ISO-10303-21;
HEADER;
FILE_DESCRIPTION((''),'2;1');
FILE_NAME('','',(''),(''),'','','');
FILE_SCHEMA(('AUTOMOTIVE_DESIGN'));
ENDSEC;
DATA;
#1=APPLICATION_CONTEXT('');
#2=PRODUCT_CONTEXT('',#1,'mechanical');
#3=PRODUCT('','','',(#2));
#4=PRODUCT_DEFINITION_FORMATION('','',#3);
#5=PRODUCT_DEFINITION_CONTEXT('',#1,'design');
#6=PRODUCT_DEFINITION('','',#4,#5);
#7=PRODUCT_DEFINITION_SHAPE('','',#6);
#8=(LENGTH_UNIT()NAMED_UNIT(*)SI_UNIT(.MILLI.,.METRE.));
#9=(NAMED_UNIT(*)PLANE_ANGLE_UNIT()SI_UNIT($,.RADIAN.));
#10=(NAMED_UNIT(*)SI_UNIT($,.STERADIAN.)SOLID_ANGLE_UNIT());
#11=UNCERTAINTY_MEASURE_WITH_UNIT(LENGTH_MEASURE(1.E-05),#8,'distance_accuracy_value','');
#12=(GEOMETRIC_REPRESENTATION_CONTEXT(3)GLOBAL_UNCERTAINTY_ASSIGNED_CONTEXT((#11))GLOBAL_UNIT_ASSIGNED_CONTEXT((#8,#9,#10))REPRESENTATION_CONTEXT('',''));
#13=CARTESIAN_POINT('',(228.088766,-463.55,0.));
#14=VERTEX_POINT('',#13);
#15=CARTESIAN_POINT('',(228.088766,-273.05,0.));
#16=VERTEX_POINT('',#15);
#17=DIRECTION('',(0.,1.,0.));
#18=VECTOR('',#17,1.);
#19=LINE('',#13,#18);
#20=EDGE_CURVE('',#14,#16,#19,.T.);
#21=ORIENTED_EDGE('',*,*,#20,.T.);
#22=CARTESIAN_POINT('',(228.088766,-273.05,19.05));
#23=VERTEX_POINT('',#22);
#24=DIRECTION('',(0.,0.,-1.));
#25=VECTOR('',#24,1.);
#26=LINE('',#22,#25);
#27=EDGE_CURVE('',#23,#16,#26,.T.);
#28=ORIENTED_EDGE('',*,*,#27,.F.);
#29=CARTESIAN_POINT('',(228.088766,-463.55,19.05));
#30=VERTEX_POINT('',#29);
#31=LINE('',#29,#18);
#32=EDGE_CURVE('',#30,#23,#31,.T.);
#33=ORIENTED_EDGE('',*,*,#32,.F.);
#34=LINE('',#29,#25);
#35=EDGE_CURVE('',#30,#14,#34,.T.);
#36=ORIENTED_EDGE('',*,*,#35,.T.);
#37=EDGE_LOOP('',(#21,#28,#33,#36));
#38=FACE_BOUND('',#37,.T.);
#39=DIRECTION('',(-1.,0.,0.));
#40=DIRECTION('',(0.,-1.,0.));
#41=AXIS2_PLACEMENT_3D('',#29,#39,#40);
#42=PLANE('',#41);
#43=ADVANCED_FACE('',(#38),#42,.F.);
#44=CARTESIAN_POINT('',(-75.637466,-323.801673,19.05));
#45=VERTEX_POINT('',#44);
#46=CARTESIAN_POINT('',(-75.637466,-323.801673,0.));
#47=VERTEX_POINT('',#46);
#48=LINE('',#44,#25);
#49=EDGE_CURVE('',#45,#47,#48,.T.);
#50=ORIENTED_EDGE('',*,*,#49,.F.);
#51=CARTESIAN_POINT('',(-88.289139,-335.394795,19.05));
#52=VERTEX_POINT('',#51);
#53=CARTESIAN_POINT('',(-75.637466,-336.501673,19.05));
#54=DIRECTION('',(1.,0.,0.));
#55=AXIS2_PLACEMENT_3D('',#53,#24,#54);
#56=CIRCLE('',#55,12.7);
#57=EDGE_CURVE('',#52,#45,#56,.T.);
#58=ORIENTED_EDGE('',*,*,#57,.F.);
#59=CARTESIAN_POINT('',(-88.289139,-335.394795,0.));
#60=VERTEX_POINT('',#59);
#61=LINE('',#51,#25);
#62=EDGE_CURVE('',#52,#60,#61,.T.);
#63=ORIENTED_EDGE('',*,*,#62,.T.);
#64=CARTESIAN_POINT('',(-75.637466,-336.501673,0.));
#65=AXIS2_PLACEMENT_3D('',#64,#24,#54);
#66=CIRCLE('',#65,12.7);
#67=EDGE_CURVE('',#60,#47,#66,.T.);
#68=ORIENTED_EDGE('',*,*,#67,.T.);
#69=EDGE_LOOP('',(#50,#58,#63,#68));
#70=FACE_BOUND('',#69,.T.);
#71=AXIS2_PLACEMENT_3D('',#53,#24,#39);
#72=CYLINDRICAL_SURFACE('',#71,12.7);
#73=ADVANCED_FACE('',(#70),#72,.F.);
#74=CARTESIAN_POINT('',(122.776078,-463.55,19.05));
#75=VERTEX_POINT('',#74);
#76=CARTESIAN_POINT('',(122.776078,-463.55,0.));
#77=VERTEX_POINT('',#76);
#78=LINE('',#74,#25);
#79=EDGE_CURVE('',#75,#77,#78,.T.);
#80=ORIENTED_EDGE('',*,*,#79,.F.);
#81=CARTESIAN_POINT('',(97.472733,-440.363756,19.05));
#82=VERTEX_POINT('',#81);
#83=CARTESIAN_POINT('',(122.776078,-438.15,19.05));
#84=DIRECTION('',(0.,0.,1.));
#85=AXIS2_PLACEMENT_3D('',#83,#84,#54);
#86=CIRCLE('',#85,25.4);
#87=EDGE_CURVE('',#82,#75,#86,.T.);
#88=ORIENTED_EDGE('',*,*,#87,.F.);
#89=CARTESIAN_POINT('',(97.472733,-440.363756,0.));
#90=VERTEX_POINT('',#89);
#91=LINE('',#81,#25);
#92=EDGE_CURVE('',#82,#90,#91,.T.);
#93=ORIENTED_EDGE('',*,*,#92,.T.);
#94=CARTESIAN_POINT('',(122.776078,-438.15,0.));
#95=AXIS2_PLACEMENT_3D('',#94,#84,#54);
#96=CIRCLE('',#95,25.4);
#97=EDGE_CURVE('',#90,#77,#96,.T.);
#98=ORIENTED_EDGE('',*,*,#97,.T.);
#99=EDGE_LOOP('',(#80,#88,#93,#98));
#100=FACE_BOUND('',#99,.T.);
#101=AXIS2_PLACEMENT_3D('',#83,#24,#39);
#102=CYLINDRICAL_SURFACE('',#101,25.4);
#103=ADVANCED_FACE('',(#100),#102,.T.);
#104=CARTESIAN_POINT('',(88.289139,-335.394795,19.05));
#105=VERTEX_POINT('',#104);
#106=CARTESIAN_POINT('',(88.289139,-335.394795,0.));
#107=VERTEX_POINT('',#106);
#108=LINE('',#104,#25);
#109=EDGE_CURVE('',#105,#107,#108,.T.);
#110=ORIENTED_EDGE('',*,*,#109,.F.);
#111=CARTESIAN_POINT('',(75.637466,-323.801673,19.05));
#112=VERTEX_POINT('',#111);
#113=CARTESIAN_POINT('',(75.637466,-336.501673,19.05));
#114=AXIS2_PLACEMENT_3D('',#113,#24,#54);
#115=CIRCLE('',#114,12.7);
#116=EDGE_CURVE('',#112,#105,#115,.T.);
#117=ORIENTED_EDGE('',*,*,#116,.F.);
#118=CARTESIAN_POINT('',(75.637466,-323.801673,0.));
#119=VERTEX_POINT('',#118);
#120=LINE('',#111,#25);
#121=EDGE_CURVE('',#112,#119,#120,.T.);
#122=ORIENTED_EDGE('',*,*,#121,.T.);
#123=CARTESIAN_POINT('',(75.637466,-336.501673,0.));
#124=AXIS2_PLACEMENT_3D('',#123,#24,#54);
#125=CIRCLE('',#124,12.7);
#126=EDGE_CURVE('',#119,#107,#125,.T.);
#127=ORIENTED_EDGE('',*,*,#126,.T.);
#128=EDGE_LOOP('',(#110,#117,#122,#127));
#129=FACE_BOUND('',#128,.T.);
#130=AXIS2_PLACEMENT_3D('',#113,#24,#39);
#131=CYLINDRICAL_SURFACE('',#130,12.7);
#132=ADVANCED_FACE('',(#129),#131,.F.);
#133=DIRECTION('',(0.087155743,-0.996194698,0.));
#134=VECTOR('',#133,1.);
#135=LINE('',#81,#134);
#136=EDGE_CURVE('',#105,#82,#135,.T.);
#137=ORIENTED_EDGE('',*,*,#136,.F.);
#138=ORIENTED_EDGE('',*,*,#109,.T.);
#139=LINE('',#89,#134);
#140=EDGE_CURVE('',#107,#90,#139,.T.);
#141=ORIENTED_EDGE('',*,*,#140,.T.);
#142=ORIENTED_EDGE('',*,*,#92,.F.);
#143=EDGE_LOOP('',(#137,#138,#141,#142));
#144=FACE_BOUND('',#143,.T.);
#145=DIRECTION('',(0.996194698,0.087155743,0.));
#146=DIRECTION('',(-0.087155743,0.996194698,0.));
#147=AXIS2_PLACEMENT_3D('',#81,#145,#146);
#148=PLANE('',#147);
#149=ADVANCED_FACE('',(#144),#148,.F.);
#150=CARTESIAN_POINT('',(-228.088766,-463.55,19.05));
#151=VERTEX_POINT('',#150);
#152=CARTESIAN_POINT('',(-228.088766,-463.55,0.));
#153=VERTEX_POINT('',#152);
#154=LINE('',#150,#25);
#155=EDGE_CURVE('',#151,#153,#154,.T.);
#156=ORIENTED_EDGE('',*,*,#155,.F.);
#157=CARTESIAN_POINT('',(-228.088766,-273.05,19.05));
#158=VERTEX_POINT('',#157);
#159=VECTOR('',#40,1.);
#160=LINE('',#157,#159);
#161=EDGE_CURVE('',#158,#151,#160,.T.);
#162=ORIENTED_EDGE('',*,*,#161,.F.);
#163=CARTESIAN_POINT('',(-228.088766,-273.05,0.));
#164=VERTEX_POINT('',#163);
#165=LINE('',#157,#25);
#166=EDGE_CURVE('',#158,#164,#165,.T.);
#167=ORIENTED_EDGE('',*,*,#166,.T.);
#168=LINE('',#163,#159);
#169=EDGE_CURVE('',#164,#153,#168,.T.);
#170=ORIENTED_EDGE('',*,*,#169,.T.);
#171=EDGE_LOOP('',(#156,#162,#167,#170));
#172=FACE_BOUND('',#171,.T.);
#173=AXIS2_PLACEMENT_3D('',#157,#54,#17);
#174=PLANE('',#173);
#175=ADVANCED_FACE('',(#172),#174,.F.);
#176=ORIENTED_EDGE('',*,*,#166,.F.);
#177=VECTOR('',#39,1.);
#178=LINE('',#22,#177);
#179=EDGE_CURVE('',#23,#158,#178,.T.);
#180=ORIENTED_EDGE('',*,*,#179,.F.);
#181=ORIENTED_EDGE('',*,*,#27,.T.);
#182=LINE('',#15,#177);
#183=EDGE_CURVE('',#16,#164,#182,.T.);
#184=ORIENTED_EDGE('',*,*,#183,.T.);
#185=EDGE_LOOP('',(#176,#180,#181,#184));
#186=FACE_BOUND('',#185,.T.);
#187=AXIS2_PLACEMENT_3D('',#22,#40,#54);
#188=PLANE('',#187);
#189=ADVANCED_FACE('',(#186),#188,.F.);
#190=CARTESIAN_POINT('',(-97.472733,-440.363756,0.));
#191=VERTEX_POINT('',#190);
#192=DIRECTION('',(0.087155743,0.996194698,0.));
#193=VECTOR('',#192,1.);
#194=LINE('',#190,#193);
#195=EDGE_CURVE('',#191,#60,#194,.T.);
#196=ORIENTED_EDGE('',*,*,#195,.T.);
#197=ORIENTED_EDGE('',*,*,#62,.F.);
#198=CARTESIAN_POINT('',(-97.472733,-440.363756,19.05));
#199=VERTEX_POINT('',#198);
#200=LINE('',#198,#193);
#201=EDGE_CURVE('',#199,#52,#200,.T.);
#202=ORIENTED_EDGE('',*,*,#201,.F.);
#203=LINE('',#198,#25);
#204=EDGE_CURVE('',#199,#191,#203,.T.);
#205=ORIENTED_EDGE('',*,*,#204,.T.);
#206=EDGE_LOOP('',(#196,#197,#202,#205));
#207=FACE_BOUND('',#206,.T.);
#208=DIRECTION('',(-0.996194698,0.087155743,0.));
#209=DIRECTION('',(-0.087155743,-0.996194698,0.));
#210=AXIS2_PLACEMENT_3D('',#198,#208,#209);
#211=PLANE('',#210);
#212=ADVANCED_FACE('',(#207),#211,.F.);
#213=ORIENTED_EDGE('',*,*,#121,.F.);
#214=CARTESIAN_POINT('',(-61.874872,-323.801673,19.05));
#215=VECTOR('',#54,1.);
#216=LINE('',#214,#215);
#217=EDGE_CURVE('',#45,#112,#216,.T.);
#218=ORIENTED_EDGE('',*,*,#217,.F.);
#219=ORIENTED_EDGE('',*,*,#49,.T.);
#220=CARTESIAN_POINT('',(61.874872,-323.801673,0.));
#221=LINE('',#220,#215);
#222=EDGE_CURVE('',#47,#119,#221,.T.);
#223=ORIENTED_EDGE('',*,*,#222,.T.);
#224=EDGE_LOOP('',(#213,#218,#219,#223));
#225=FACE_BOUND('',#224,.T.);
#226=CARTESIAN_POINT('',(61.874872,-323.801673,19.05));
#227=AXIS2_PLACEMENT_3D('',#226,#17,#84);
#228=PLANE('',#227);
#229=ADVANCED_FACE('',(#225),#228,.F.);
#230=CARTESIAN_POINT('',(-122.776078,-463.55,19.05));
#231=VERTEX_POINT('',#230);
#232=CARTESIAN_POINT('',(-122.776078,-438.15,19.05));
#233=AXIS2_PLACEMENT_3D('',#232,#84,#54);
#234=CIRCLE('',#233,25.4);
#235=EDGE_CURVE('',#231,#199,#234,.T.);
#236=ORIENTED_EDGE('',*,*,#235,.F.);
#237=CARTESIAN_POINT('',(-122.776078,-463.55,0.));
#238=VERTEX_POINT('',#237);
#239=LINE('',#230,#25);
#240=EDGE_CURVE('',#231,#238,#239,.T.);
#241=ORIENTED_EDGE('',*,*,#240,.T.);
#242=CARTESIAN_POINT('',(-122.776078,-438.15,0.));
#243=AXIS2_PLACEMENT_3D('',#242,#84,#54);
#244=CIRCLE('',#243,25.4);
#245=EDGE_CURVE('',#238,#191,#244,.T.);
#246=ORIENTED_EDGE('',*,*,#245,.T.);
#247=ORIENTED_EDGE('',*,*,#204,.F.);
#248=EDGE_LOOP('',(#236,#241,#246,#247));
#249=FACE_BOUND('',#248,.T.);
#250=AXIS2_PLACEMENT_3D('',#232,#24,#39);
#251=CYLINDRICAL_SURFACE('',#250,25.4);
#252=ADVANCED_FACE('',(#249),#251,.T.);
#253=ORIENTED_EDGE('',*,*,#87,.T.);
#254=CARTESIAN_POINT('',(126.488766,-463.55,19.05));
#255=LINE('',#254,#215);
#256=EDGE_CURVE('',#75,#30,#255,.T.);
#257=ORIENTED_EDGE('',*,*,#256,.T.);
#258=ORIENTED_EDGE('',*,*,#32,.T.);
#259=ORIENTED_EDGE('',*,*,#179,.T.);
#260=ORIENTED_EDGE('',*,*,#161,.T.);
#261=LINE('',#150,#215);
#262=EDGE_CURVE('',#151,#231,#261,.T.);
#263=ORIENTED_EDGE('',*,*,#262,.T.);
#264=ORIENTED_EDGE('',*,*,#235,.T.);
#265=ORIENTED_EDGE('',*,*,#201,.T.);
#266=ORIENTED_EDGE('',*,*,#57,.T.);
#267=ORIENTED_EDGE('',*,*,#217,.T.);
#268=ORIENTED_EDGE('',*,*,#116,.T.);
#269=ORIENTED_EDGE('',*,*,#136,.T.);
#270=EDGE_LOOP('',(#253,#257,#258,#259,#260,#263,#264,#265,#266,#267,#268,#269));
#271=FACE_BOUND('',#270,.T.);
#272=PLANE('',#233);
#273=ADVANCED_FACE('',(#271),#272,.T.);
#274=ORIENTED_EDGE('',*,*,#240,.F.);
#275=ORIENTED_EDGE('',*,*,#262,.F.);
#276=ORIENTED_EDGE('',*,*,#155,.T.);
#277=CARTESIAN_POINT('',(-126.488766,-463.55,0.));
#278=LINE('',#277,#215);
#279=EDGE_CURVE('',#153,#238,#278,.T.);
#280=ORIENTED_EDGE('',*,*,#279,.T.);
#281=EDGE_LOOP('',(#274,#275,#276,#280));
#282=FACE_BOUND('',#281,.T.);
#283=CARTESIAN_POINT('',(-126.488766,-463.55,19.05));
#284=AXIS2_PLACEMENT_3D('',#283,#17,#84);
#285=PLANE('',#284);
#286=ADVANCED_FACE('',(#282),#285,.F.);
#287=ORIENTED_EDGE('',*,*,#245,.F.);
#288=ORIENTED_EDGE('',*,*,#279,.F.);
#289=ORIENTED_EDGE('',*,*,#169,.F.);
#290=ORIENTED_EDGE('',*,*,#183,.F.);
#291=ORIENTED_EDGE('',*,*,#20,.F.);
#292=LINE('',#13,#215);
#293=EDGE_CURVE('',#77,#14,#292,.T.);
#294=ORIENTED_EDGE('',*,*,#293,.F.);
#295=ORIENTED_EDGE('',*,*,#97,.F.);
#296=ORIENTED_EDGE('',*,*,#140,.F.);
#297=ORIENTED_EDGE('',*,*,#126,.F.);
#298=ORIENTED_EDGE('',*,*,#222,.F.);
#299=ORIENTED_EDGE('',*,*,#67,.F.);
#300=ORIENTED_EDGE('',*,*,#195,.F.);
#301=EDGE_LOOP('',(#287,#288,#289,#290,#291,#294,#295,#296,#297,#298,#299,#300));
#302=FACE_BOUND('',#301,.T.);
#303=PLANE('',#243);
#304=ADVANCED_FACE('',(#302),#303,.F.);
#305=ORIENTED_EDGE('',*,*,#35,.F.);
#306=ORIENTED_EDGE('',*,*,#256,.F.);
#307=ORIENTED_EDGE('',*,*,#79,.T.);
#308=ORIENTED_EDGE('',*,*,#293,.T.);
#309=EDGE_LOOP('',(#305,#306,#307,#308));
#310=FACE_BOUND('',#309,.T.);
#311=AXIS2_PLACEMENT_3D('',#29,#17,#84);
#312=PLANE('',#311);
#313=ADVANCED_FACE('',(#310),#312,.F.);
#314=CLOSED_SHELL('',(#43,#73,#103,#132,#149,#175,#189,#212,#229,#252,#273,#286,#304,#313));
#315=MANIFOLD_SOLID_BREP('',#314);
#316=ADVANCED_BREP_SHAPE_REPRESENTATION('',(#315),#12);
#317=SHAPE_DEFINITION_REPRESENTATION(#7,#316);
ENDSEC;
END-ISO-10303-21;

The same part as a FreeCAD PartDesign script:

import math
import FreeCAD as App
import Part
import Sketcher

V = App.Vector
Q = App.Units.Quantity

doc = App.newDocument("Part")
params = doc.addObject("Spreadsheet::Sheet", "Params")
for row, (alias, value) in enumerate([
    ("sketch1_radius", "1 in"),
    ("sketch1_radius2", "0.5 in"),
    ("sketch1_height", "7.5 in"),
    ("pad1_length", "0.75 in"),
], start=1):
    params.set(f"A{row}", alias)
    params.set(f"B{row}", "=" + value)
    params.setAlias(f"B{row}", alias)

body = doc.addObject("PartDesign::Body", "Body")

# Sketch on XY plane
sketch1 = body.newObject("Sketcher::SketchObject", "Sketch")
sketch1.AttachmentSupport = (doc.getObject("XY_Plane"), [""])
sketch1.MapMode = "FlatFace"
sketch1.addGeometry([
    Part.LineSegment(V(-228, -464, 0), V(-123, -464, 0)),  # 0
    Part.ArcOfCircle(Part.Circle(V(-123, -438, 0), V(0, 0, 1), 25), math.radians(-90), math.radians(-69)),  # 1
    Part.ArcOfCircle(Part.Circle(V(-123, -438, 0), V(0, 0, 1), 25), math.radians(-69), math.radians(-5)),  # 2
    Part.LineSegment(V(-97, -440, 0), V(-88, -335, 0)),  # 3
    Part.ArcOfCircle(Part.Circle(V(-76, -337, 0), V(0, 0, 1), 13), math.radians(90), math.radians(175)),  # 4
    Part.LineSegment(V(-76, -324, 0), V(76, -324, 0)),  # 5
    Part.ArcOfCircle(Part.Circle(V(76, -337, 0), V(0, 0, 1), 13), math.radians(5), math.radians(90)),  # 6
    Part.LineSegment(V(88, -335, 0), V(97, -440, 0)),  # 7
    Part.ArcOfCircle(Part.Circle(V(123, -438, 0), V(0, 0, 1), 25), math.radians(-175), math.radians(-111)),  # 8
    Part.ArcOfCircle(Part.Circle(V(123, -438, 0), V(0, 0, 1), 25), math.radians(-111), math.radians(-90)),  # 9
    Part.LineSegment(V(123, -464, 0), V(228, -464, 0)),  # 10
    Part.LineSegment(V(228, -464, 0), V(228, -273, 0)),  # 11
    Part.LineSegment(V(228, -273, 0), V(-228, -273, 0)),  # 12
    Part.LineSegment(V(-228, -273, 0), V(-228, -464, 0)),  # 13
], False)
sketch1.addConstraint([
    Sketcher.Constraint("Tangent", 0, 2, 1, 1),
    Sketcher.Constraint("Tangent", 1, 2, 2, 1),
    Sketcher.Constraint("Tangent", 2, 2, 3, 1),
    Sketcher.Constraint("Tangent", 3, 2, 4, 2),
    Sketcher.Constraint("Tangent", 4, 1, 5, 1),
    Sketcher.Constraint("Tangent", 5, 2, 6, 2),
    Sketcher.Constraint("Tangent", 6, 1, 7, 1),
    Sketcher.Constraint("Tangent", 7, 2, 8, 1),
    Sketcher.Constraint("Tangent", 8, 2, 9, 1),
    Sketcher.Constraint("Tangent", 9, 2, 10, 1),
    Sketcher.Constraint("Coincident", 10, 2, 11, 1),
    Sketcher.Constraint("Coincident", 11, 2, 12, 1),
    Sketcher.Constraint("Coincident", 12, 2, 13, 1),
    Sketcher.Constraint("Coincident", 13, 2, 0, 1),
    Sketcher.Constraint("Horizontal", 0),
    Sketcher.Constraint("Horizontal", 5),
    Sketcher.Constraint("Horizontal", 10),
    Sketcher.Constraint("Vertical", 11),
    Sketcher.Constraint("Horizontal", 12),
    Sketcher.Constraint("Vertical", 13),
    Sketcher.Constraint("Equal", 1, 2),
    Sketcher.Constraint("Equal", 4, 6),
    Sketcher.Constraint("Equal", 2, 8),
    Sketcher.Constraint("Equal", 8, 9),
    Sketcher.Constraint("Symmetric", 1, 3, 8, 3, -2),
    Sketcher.Constraint("Horizontal", 3, 2, 6, 1),
    Sketcher.Constraint("Horizontal", 1, 2, 8, 2),
    Sketcher.Constraint("Equal", 0, 10),
    Sketcher.Constraint("Radius", 1, Q("1 in")),
    Sketcher.Constraint("Radius", 4, Q("0.5 in")),
    Sketcher.Constraint("DistanceY", 11, 1, 11, 2, Q("7.5 in")),
    Sketcher.Constraint("Angle", 3, Q("85 deg")),
    Sketcher.Constraint("DistanceX", 8, 2, 10, 2, Q("4.5 in")),
    Sketcher.Constraint("DistanceY", 1, 3, -1, 1, Q("17.25 in")),
    Sketcher.Constraint("DistanceX", 0, 1, 0, 2, 105.312688),
    Sketcher.Constraint("DistanceX", 5, 2, 11, 2, 152.4513),
    Sketcher.Constraint("DistanceX", 5, 1, 5, 2, 151.274932),
])
sketch1.setExpression("Constraints[28]", "Params.sketch1_radius")
sketch1.setExpression("Constraints[29]", "Params.sketch1_radius2")
sketch1.setExpression("Constraints[30]", "Params.sketch1_height")
pad1 = body.newObject("PartDesign::Pad", "Pad")
pad1.Profile = sketch1
pad1.setExpression("Length", "Params.pad1_length")

doc.recompute()
